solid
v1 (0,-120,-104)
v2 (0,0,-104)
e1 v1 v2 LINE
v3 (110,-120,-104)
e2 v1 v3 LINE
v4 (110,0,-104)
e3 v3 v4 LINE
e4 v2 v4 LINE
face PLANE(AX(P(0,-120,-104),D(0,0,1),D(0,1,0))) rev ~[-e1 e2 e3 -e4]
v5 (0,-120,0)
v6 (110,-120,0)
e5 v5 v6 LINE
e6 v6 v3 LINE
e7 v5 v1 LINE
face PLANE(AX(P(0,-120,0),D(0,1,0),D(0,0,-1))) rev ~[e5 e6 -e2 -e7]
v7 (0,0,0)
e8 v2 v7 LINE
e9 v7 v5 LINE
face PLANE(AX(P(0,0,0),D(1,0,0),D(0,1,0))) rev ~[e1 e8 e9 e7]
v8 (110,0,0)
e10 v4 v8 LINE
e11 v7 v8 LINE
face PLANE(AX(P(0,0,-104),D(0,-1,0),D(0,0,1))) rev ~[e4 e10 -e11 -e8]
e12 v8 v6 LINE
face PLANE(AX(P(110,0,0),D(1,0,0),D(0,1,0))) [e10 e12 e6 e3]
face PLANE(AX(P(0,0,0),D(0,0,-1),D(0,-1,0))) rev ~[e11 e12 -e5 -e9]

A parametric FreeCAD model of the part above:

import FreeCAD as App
import Part
import Sketcher

doc = App.newDocument("Part")
body = doc.addObject("PartDesign::Body", "Body")

sketch1 = body.newObject("Sketcher::SketchObject", "Sketch")
sketch1.AttachmentSupport = (doc.getObject("YZ_Plane"), [""])
sketch1.MapMode = "FlatFace"
sketch1.addGeometry(Part.LineSegment(App.Vector(0, -104, 0), App.Vector(0, 0, 0)), False)
sketch1.addGeometry(Part.LineSegment(App.Vector(0, 0, 0), App.Vector(-120, 0, 0)), False)
sketch1.addGeometry(Part.LineSegment(App.Vector(-120, 0, 0), App.Vector(-120, -104, 0)), False)
sketch1.addGeometry(Part.LineSegment(App.Vector(-120, -104, 0), App.Vector(0, -104, 0)), False)
sketch1.addConstraint(Sketcher.Constraint("Coincident", 0, 2, 1, 1))
sketch1.addConstraint(Sketcher.Constraint("Coincident", 1, 2, 2, 1))
sketch1.addConstraint(Sketcher.Constraint("Coincident", 2, 2, 3, 1))
sketch1.addConstraint(Sketcher.Constraint("Coincident", 3, 2, 0, 1))
sketch1.addConstraint(Sketcher.Constraint("Vertical", 0))
sketch1.addConstraint(Sketcher.Constraint("Horizontal", 1))
sketch1.addConstraint(Sketcher.Constraint("Vertical", 2))
sketch1.addConstraint(Sketcher.Constraint("Horizontal", 3))
sketch1.addConstraint(Sketcher.Constraint("Coincident", 0, 2, -1, 1))
sketch1.addConstraint(Sketcher.Constraint("DistanceX", 1, 2, 1, 1, 120.0))
sketch1.addConstraint(Sketcher.Constraint("DistanceY", 0, 1, 0, 2, 104.0))
pad1 = body.newObject("PartDesign::Pad", "Pad")
pad1.Profile = sketch1
pad1.Length = 110

doc.recompute()
